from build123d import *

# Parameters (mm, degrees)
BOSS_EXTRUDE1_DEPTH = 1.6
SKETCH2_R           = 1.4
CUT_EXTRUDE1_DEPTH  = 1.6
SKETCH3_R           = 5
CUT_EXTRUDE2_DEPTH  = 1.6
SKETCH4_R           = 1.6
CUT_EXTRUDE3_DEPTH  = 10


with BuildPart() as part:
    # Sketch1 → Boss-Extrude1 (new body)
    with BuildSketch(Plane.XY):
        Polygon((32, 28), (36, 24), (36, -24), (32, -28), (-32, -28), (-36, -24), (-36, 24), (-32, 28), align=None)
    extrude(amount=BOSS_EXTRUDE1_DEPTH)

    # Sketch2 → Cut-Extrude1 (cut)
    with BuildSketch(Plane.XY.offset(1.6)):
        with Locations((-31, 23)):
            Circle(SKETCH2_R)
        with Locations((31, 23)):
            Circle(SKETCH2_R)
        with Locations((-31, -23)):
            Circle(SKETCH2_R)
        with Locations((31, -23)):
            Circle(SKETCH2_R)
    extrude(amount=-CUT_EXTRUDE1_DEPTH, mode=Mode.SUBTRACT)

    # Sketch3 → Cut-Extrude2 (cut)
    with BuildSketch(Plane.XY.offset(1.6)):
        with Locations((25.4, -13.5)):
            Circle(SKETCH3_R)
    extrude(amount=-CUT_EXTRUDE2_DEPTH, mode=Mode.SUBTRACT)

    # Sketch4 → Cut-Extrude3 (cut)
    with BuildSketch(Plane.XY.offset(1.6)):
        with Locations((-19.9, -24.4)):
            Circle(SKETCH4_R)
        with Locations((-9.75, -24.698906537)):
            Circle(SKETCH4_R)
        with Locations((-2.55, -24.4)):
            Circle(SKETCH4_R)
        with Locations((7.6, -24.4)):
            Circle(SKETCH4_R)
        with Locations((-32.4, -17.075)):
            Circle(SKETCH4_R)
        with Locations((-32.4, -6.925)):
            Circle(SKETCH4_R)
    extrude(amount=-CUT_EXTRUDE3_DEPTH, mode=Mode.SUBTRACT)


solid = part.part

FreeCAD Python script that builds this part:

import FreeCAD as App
import Part
import Sketcher

V = App.Vector

doc = App.newDocument("Part")
body = doc.addObject("PartDesign::Body", "Body")

sketch1 = doc.addObject("Sketcher::SketchObject", "Sketch")
body.addObject(sketch1)
sketch1.AttachmentSupport = (doc.XY_Plane, [""])
sketch1.MapMode = "FlatFace"
sketch1.addGeometry([
    Part.LineSegment(V(36, 24, 0), V(32, 28, 0)),
    Part.LineSegment(V(32, 28, 0), V(-32, 28, 0)),
    Part.LineSegment(V(-32, 28, 0), V(-36, 24, 0)),
    Part.LineSegment(V(-36, 24, 0), V(-36, -24, 0)),
    Part.LineSegment(V(-36, -24, 0), V(-32, -28, 0)),
    Part.LineSegment(V(-32, -28, 0), V(32, -28, 0)),
    Part.LineSegment(V(32, -28, 0), V(36, -24, 0)),
    Part.LineSegment(V(36, -24, 0), V(36, 24, 0)),
], False)
sketch1.addConstraint([
    Sketcher.Constraint("Coincident", 0, 2, 1, 1),
    Sketcher.Constraint("Coincident", 1, 2, 2, 1),
    Sketcher.Constraint("Coincident", 2, 2, 3, 1),
    Sketcher.Constraint("Coincident", 3, 2, 4, 1),
    Sketcher.Constraint("Coincident", 4, 2, 5, 1),
    Sketcher.Constraint("Coincident", 5, 2, 6, 1),
    Sketcher.Constraint("Coincident", 6, 2, 7, 1),
    Sketcher.Constraint("Coincident", 7, 2, 0, 1),
    Sketcher.Constraint("Horizontal", 1),
    Sketcher.Constraint("Vertical", 3),
    Sketcher.Constraint("Horizontal", 5),
    Sketcher.Constraint("Vertical", 7),
    Sketcher.Constraint("Symmetric", 0, 2, 4, 2, -1, 1),
    Sketcher.Constraint("Symmetric", 2, 2, 6, 2, -1, 1),
    Sketcher.Constraint("Perpendicular", 0, 2),
    Sketcher.Constraint("Perpendicular", 2, 4),
    Sketcher.Constraint("Perpendicular", 4, 6),
    Sketcher.Constraint("Horizontal", 3, 2, 6, 2),
    Sketcher.Constraint("Vertical", 1, 2, 4, 2),
    Sketcher.Constraint("DistanceX", 1, 2, 1, 1, 64.0),
    Sketcher.Constraint("DistanceY", 3, 2, 3, 1, 48.0),
    Sketcher.Constraint("DistanceY", -1, 1, 0, 2, 28.0),
])
pad1 = doc.addObject("PartDesign::Pad", "Pad")
body.addObject(pad1)
pad1.Profile = sketch1
pad1.Length = 1.6

sketch2 = doc.addObject("Sketcher::SketchObject", "Sketch001")
body.addObject(sketch2)
sketch2.AttachmentSupport = (doc.XY_Plane, [""])
sketch2.MapMode = "FlatFace"
sketch2.AttachmentOffset = App.Placement(V(0, 0, 1.6), App.Rotation())
sketch2.addGeometry([
    Part.Circle(V(-31, 23, 0), V(0, 0, 1), 1.4),
    Part.Circle(V(31, 23, 0), V(0, 0, 1), 1.4),
    Part.Circle(V(-31, -23, 0), V(0, 0, 1), 1.4),
    Part.Circle(V(31, -23, 0), V(0, 0, 1), 1.4),
], False)
sketch2.addConstraint([
    Sketcher.Constraint("Equal", 0, 1),
    Sketcher.Constraint("Equal", 1, 2),
    Sketcher.Constraint("Equal", 2, 3),
    Sketcher.Constraint("Symmetric", 1, 3, 2, 3, -1, 1),
    Sketcher.Constraint("Symmetric", 0, 3, 3, 3, -1, 1),
    Sketcher.Constraint("Symmetric", 0, 3, 1, 3, -2),
    Sketcher.Constraint("Diameter", 0, 2.8),
    Sketcher.Constraint("DistanceX", 0, 3, -1, 1, 31.0),
    Sketcher.Constraint("DistanceY", -1, 1, 0, 3, 23.0),
])
pocket1 = doc.addObject("PartDesign::Pocket", "Pocket")
body.addObject(pocket1)
pocket1.Profile = sketch2
pocket1.Length = 1.6

sketch3 = doc.addObject("Sketcher::SketchObject", "Sketch002")
body.addObject(sketch3)
sketch3.AttachmentSupport = (doc.XY_Plane, [""])
sketch3.MapMode = "FlatFace"
sketch3.AttachmentOffset = App.Placement(V(0, 0, 1.6), App.Rotation())
sketch3.addGeometry(Part.Circle(V(25.4, -13.5, 0), V(0, 0, 1), 5), False)
sketch3.addConstraint([
    Sketcher.Constraint("Diameter", 0, 10.0),
    Sketcher.Constraint("DistanceX", -1, 1, 0, 3, 25.4),
    Sketcher.Constraint("DistanceY", 0, 3, -1, 1, 13.5),
])
pocket2 = doc.addObject("PartDesign::Pocket", "Pocket001")
body.addObject(pocket2)
pocket2.Profile = sketch3
pocket2.Length = 1.6

sketch4 = doc.addObject("Sketcher::SketchObject", "Sketch003")
body.addObject(sketch4)
sketch4.AttachmentSupport = (doc.XY_Plane, [""])
sketch4.MapMode = "FlatFace"
sketch4.AttachmentOffset = App.Placement(V(0, 0, 1.6), App.Rotation())
sketch4.addGeometry([
    Part.Circle(V(-19.9, -24.4, 0), V(0, 0, 1), 1.6),
    Part.Circle(V(-9.75, -24.698907, 0), V(0, 0, 1), 1.6),
    Part.Circle(V(-2.55, -24.4, 0), V(0, 0, 1), 1.6),
    Part.Circle(V(7.6, -24.4, 0), V(0, 0, 1), 1.6),
    Part.Circle(V(-32.4, -17.075, 0), V(0, 0, 1), 1.6),
    Part.Circle(V(-32.4, -6.925, 0), V(0, 0, 1), 1.6),
], False)
sketch4.addConstraint([
    Sketcher.Constraint("Equal", 0, 1),
    Sketcher.Constraint("Equal", 1, 2),
    Sketcher.Constraint("Equal", 2, 3),
    Sketcher.Constraint("Equal", 3, 4),
    Sketcher.Constraint("Equal", 4, 5),
    Sketcher.Constraint("Horizontal", 0, 3, 2, 3),
    Sketcher.Constraint("Horizontal", 2, 3, 3, 3),
    Sketcher.Constraint("Vertical", 4, 3, 5, 3),
    Sketcher.Constraint("Diameter", 0, 3.2),
    Sketcher.Constraint("DistanceX", 4, 3, 3, 3, 40.0),
    Sketcher.Constraint("DistanceX", 0, 3, -1, 1, 19.9),
    Sketcher.Constraint("DistanceY", 0, 3, -1, 1, 24.4),
    Sketcher.Constraint("DistanceX", -1, 1, 3, 3, 7.6),
    Sketcher.Constraint("DistanceX", 1, 3, 2, 3, 7.2),
    Sketcher.Constraint("DistanceX", 1, 3, -1, 1, 9.75),
    Sketcher.Constraint("DistanceY", 4, 3, 5, 3, 10.15),
    Sketcher.Constraint("DistanceY", 4, 3, -1, 1, 17.075),
    Sketcher.Constraint("DistanceY", 1, 3, -1, 1, 24.698907),
])
pocket3 = doc.addObject("PartDesign::Pocket", "Pocket002")
body.addObject(pocket3)
pocket3.Profile = sketch4
pocket3.Length = 10

doc.recompute()
